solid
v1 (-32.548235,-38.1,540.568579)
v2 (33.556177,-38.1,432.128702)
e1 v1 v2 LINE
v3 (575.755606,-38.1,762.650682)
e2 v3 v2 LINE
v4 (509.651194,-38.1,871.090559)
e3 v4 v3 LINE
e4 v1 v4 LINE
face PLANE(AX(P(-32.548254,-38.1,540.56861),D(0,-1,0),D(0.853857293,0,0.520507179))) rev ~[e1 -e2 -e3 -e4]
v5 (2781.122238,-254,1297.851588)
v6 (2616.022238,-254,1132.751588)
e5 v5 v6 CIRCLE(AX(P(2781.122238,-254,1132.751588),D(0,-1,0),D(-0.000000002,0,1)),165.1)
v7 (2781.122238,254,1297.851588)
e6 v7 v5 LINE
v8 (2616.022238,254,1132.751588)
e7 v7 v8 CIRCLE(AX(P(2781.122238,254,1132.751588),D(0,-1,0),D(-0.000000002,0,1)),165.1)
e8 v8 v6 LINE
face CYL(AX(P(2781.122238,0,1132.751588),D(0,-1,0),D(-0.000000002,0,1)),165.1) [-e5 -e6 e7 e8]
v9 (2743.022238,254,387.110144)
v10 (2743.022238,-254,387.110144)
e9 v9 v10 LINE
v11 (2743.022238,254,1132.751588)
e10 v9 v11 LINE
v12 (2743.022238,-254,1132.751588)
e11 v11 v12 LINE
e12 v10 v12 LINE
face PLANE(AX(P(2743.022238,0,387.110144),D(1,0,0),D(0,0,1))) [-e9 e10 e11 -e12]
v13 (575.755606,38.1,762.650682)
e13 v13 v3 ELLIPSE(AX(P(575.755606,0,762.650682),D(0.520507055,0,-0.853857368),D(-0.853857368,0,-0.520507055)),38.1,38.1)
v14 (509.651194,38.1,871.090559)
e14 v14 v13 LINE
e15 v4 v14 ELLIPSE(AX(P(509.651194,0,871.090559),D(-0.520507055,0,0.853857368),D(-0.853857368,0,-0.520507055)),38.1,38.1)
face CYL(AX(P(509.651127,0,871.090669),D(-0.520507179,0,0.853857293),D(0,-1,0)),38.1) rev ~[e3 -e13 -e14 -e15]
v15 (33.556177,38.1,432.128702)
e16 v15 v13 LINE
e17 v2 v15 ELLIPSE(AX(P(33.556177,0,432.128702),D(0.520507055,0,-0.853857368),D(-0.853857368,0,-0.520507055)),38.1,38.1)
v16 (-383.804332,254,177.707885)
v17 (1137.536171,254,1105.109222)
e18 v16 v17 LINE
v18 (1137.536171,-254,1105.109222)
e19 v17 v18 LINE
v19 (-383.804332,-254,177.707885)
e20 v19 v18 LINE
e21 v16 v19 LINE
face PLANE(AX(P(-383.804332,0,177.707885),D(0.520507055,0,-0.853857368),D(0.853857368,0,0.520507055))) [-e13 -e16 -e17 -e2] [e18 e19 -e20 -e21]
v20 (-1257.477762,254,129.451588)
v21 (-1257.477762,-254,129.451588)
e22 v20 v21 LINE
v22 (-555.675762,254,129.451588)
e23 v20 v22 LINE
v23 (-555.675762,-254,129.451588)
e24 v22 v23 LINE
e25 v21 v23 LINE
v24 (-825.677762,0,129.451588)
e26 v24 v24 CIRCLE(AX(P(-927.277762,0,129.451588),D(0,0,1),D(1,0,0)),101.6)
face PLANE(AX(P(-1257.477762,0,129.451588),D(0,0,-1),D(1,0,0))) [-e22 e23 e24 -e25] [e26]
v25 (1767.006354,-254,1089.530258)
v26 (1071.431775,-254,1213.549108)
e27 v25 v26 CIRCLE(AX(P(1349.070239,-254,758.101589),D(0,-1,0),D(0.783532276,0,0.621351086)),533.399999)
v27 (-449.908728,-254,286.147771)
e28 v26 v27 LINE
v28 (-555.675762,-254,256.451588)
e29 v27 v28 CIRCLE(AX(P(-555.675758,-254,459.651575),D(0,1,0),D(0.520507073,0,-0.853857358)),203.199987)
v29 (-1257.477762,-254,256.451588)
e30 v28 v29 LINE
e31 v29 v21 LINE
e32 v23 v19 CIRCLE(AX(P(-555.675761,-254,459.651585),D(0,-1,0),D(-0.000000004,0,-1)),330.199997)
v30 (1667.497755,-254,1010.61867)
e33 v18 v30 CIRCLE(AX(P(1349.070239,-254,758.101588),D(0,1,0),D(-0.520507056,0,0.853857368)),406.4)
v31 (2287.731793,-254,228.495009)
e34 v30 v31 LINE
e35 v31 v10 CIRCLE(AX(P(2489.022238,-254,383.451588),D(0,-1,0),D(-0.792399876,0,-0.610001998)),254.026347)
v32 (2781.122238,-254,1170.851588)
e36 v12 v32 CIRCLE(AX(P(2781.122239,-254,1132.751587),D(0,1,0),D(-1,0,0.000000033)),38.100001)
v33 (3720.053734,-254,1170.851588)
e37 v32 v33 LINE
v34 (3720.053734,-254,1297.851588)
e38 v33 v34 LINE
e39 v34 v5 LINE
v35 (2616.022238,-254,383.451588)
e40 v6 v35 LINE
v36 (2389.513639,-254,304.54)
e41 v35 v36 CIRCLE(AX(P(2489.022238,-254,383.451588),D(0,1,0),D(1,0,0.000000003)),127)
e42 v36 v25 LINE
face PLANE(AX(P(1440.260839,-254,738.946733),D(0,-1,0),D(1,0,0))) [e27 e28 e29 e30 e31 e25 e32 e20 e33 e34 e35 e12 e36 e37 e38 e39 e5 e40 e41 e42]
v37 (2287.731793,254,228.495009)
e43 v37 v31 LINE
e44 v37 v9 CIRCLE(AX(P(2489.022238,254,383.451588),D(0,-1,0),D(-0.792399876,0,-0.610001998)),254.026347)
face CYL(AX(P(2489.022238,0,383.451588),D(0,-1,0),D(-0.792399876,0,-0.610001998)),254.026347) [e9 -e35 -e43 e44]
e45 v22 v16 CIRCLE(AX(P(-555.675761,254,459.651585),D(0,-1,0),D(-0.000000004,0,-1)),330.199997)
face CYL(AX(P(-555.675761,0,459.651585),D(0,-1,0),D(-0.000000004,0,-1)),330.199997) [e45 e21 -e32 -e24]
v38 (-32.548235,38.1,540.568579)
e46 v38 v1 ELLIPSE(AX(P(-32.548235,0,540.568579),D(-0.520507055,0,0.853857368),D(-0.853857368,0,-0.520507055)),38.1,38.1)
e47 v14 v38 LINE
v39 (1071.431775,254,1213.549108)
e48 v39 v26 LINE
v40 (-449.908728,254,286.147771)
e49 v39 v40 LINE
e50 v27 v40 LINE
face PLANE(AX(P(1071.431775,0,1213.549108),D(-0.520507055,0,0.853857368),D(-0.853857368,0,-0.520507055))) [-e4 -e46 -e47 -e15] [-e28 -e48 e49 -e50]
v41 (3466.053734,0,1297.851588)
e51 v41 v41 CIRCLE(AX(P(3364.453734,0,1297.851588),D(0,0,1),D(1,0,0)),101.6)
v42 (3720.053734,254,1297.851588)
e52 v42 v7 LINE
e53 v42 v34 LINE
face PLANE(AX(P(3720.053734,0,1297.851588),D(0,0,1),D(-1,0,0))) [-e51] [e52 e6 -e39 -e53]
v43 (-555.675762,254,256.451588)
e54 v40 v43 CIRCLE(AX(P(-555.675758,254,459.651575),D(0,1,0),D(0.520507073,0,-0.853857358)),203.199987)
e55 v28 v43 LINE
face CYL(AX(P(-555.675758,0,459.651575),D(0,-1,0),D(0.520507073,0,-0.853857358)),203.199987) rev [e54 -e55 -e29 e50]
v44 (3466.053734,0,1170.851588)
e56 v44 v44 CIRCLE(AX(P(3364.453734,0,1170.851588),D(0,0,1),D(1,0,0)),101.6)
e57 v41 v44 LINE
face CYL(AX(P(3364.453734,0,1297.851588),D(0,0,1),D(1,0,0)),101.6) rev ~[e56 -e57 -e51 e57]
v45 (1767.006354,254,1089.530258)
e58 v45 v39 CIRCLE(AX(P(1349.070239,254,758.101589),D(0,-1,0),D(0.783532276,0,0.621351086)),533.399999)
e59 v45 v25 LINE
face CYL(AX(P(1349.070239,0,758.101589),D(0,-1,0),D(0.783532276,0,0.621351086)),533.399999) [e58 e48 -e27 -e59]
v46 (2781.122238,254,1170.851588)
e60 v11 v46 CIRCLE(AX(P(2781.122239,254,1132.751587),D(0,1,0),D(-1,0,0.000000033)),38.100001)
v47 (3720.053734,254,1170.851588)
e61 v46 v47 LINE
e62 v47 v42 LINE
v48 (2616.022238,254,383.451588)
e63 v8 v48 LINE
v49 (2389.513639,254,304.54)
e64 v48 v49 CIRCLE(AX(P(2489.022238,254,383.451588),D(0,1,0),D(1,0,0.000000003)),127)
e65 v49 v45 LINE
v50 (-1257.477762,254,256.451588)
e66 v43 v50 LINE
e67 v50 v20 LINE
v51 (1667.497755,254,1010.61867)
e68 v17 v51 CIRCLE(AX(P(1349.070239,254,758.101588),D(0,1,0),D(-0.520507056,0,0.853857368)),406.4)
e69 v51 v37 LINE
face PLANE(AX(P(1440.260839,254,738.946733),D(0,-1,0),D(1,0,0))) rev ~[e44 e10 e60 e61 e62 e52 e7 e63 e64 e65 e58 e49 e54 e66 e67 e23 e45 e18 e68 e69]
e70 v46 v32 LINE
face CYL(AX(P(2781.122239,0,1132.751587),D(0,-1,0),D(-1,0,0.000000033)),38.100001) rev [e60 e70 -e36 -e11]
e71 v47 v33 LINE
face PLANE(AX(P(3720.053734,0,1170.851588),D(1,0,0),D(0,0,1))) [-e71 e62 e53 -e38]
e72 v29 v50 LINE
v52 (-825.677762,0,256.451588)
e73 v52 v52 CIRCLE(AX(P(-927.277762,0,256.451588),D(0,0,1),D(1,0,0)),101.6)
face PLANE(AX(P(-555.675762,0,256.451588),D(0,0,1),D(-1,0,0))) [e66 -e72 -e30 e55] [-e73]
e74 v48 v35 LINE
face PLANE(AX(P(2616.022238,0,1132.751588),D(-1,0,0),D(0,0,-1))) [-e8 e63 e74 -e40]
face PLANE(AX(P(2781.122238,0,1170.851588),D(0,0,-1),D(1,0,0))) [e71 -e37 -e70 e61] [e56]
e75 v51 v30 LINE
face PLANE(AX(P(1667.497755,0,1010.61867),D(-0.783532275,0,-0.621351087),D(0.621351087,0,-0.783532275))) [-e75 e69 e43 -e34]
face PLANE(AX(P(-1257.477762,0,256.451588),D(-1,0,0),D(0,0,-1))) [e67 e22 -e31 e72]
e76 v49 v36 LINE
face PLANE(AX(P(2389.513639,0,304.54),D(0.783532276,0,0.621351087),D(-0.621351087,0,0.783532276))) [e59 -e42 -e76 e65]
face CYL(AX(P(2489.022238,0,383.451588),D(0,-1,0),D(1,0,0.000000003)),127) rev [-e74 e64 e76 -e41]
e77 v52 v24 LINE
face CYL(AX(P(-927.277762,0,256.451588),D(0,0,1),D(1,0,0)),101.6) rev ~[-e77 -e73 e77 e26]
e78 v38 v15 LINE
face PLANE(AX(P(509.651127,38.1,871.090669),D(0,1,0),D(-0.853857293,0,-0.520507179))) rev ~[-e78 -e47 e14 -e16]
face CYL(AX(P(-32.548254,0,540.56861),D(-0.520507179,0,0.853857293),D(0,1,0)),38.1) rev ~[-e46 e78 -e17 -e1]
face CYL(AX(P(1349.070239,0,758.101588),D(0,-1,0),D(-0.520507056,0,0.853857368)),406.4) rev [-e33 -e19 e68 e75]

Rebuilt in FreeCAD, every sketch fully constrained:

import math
import FreeCAD as App
import Part
import Sketcher

V = App.Vector
Q = App.Units.Quantity

doc = App.newDocument("Part")
body = doc.addObject("PartDesign::Body", "Body")

sketch1 = body.newObject("Sketcher::SketchObject", "Sketch")
sketch1.AttachmentSupport = (doc.getObject("XZ_Plane"), [""])
sketch1.MapMode = "FlatFace"
sketch1.addGeometry([
    Part.LineSegment(V(-1257.477762, 256.451588, 0), V(-1257.477762, 129.451588, 0)),
    Part.LineSegment(V(-1257.477762, 129.451588, 0), V(-555.675762, 129.451588, 0)),
    Part.ArcOfCircle(Part.Circle(V(-555.675761, 459.651585, 0), V(0, 0, 1), 330.199997), math.radians(-90), math.radians(-58.63373)),
    Part.LineSegment(V(-383.804332, 177.707885, 0), V(1137.536171, 1105.109222, 0)),
    Part.ArcOfCircle(Part.Circle(V(1349.070239, 758.101588, 0), V(0, 0, 1), 406.4), math.radians(38.414865), math.radians(121.36627)),
    Part.LineSegment(V(1667.497755, 1010.61867, 0), V(2287.731793, 228.495009, 0)),
    Part.ArcOfCircle(Part.Circle(V(2489.022238, 383.451588, 0), V(0, 0, 1), 254.026347), math.radians(-142.410353), math.radians(0.825218)),
    Part.LineSegment(V(2743.022238, 387.110144, 0), V(2743.022238, 1132.751588, 0)),
    Part.ArcOfCircle(Part.Circle(V(2781.122239, 1132.751587, 0), V(0, 0, 1), 38.100001), math.radians(90.000002), math.radians(179.999998)),
    Part.LineSegment(V(2781.122238, 1170.851588, 0), V(3720.053734, 1170.851588, 0)),
    Part.LineSegment(V(3720.053734, 1170.851588, 0), V(3720.053734, 1297.851588, 0)),
    Part.LineSegment(V(3720.053734, 1297.851588, 0), V(2781.122238, 1297.851588, 0)),
    Part.ArcOfCircle(Part.Circle(V(2781.122238, 1132.751588, 0), V(0, 0, 1), 165.1), math.radians(90), math.radians(180)),
    Part.LineSegment(V(2616.022238, 1132.751588, 0), V(2616.022238, 383.451588, 0)),
    Part.ArcOfCircle(Part.Circle(V(2489.022238, 383.451588, 0), V(0, 0, 1), 127), math.radians(-141.585135), math.radians(0)),
    Part.LineSegment(V(2389.513639, 304.54, 0), V(1767.006354, 1089.530258, 0)),
    Part.ArcOfCircle(Part.Circle(V(1349.070239, 758.101589, 0), V(0, 0, 1), 533.399999), math.radians(38.414865), math.radians(121.36627)),
    Part.LineSegment(V(1071.431775, 1213.549108, 0), V(-449.908728, 286.147771, 0)),
    Part.ArcOfCircle(Part.Circle(V(-555.675758, 459.651575, 0), V(0, 0, 1), 203.199987), math.radians(-90.000001), math.radians(-58.633729)),
    Part.LineSegment(V(-555.675762, 256.451588, 0), V(-1257.477762, 256.451588, 0)),
], False)
sketch1.addConstraint([
    Sketcher.Constraint("Coincident", 0, 2, 1, 1),
    Sketcher.Constraint("Tangent", 1, 2, 2, 1),
    Sketcher.Constraint("Tangent", 2, 2, 3, 1),
    Sketcher.Constraint("Tangent", 3, 2, 4, 2),
    Sketcher.Constraint("Tangent", 4, 1, 5, 1),
    Sketcher.Constraint("Coincident", 5, 2, 6, 1),
    Sketcher.Constraint("Coincident", 6, 2, 7, 1),
    Sketcher.Constraint("Tangent", 7, 2, 8, 2),
    Sketcher.Constraint("Tangent", 8, 1, 9, 1),
    Sketcher.Constraint("Coincident", 9, 2, 10, 1),
    Sketcher.Constraint("Coincident", 10, 2, 11, 1),
    Sketcher.Constraint("Tangent", 11, 2, 12, 1),
    Sketcher.Constraint("Tangent", 12, 2, 13, 1),
    Sketcher.Constraint("Tangent", 13, 2, 14, 2),
    Sketcher.Constraint("Tangent", 14, 1, 15, 1),
    Sketcher.Constraint("Tangent", 15, 2, 16, 1),
    Sketcher.Constraint("Tangent", 16, 2, 17, 1),
    Sketcher.Constraint("Tangent", 17, 2, 18, 2),
    Sketcher.Constraint("Tangent", 18, 1, 19, 1),
    Sketcher.Constraint("Coincident", 19, 2, 0, 1),
    Sketcher.Constraint("Vertical", 0),
    Sketcher.Constraint("Horizontal", 1),
    Sketcher.Constraint("Vertical", 7),
    Sketcher.Constraint("Horizontal", 9),
    Sketcher.Constraint("Vertical", 10),
    Sketcher.Constraint("Horizontal", 11),
    Sketcher.Constraint("Vertical", 13),
    Sketcher.Constraint("Horizontal", 19),
    Sketcher.Constraint("Coincident", 12, 3, 8, 3),
    Sketcher.Constraint("Coincident", 14, 3, 6, 3),
    Sketcher.Constraint("Coincident", 16, 3, 4, 3),
    Sketcher.Constraint("Parallel", 5, 15),
    Sketcher.Constraint("Parallel", 3, 17),
    Sketcher.Constraint("Vertical", 1, 2, 18, 1),
    Sketcher.Constraint("Equal", 0, 10),
    Sketcher.Constraint("Equal", 3, 17),
    Sketcher.Constraint("Radius", 2, Q("12.9999999 in")),
    Sketcher.Constraint("Radius", 4, Q("16 in")),
    Sketcher.Constraint("Radius", 14, Q("5 in")),
    Sketcher.Constraint("Radius", 16, Q("21 in")),
    Sketcher.Constraint("Radius", 8, Q("1.5 in")),
    Sketcher.Constraint("DistanceY", 13, 2, 13, 1, Q("29.5 in")),
    Sketcher.Constraint("DistanceY", 6, 3, 2, 3, Q("2.9999999 in")),
    Sketcher.Constraint("DistanceX", 1, 1, 1, 2, Q("27.63 in")),
    Sketcher.Constraint("DistanceX", 0, 2, 14, 3, Q("147.5 in")),
    Sketcher.Constraint("DistanceX", 2, 3, 4, 3, Q("74.99 in")),
    Sketcher.Constraint("DistanceY", 2, 3, 4, 3, Q("11.7500001 in")),
    Sketcher.Constraint("Radius", 6, Q("254.026347 mm")),
    Sketcher.Constraint("DistanceX", 9, 1, 9, 2, Q("938.931496 mm")),
    Sketcher.Constraint("DistanceX", 2, 3, -1, 1, Q("555.675761 mm")),
    Sketcher.Constraint("DistanceY", -1, 1, 16, 3, Q("758.101589 mm")),
])
pad1 = body.newObject("PartDesign::Pad", "Pad")
pad1.Profile = sketch1
pad1.Length = Q("20 in")
pad1.Midplane = True

sketch2 = body.newObject("Sketcher::SketchObject", "Sketch001")
sketch2.AttachmentSupport = (doc.getObject("XY_Plane"), [""])
sketch2.MapMode = "FlatFace"
sketch2.AttachmentOffset = App.Placement(V(0, 0, 256.451588), App.Rotation())
sketch2.addGeometry([
    Part.Circle(V(-927.277762, 0, 0), V(0, 0, 1), 101.6),
    Part.Circle(V(3364.453734, 0, 0), V(0, 0, 1), 101.6),
], False)
sketch2.addConstraint([
    Sketcher.Constraint("Equal", 0, 1),
    Sketcher.Constraint("PointOnObject", 0, 3, -1),
    Sketcher.Constraint("PointOnObject", 1, 3, -1),
    Sketcher.Constraint("Diameter", 0, Q("8 in")),
    Sketcher.Constraint("DistanceX", 0, 3, -1, 1, Q("927.277762 mm")),
    Sketcher.Constraint("DistanceX", -1, 1, 1, 3, Q("3364.453734 mm")),
])
pocket1 = body.newObject("PartDesign::Pocket", "Pocket")
pocket1.Profile = sketch2
pocket1.Type = "ThroughAll"

sketch3 = body.newObject("Sketcher::SketchObject", "Sketch002")
sketch3.AttachmentSupport = (doc.getObject("XY_Plane"), [""])
sketch3.MapMode = "FlatFace"
sketch3.AttachmentOffset = App.Placement(V(0, 0, 1297.851588), App.Rotation())
sketch3.addGeometry(Part.Circle(V(3364.453734, 0, 0), V(0, 0, 1), 101.6), False)
sketch3.addConstraint([
    Sketcher.Constraint("PointOnObject", 0, 3, -1),
    Sketcher.Constraint("Diameter", 0, Q("8 in")),
    Sketcher.Constraint("DistanceX", -1, 1, 0, 3, Q("3364.453734 mm")),
])
pocket2 = body.newObject("PartDesign::Pocket", "Pocket001")
pocket2.Profile = sketch3
pocket2.Type = "ThroughAll"

sketch4 = body.newObject("Sketcher::SketchObject", "Sketch003")
sketch4.Placement = App.Placement(V(-249.067857, 0, 408.579332), App.Rotation(V(0.853857293, 0, 0.520507179), V(0, 1, 0), V(-0.520507179, 0, 0.853857293), "ZXY"))
sketch4.addGeometry([
    Part.LineSegment(V(888.578209, 38.1, 0), V(253.578209, 38.1, 0)),
    Part.ArcOfCircle(Part.Circle(V(253.578209, 0, 0), V(0, 0, 1), 38.1), math.radians(90), math.radians(270)),
    Part.LineSegment(V(253.578209, -38.1, 0), V(888.578209, -38.1, 0)),
    Part.ArcOfCircle(Part.Circle(V(888.578209, 0, 0), V(0, 0, 1), 38.1), math.radians(-90), math.radians(90)),
], False)
sketch4.addConstraint([
    Sketcher.Constraint("Tangent", 0, 2, 1, 1),
    Sketcher.Constraint("Tangent", 1, 2, 2, 1),
    Sketcher.Constraint("Tangent", 2, 2, 3, 1),
    Sketcher.Constraint("Tangent", 3, 2, 0, 1),
    Sketcher.Constraint("Horizontal", 0),
    Sketcher.Constraint("Horizontal", 2),
    Sketcher.Constraint("PointOnObject", 1, 3, -1),
    Sketcher.Constraint("Radius", 1, Q("1.5 in")),
    Sketcher.Constraint("DistanceX", 0, 2, 0, 1, Q("25 in")),
    Sketcher.Constraint("DistanceX", -1, 1, 1, 3, Q("253.578209 mm")),
])
pocket3 = body.newObject("PartDesign::Pocket", "Pocket002")
pocket3.Profile = sketch4
pocket3.Type = "ThroughAll"

doc.recompute()
